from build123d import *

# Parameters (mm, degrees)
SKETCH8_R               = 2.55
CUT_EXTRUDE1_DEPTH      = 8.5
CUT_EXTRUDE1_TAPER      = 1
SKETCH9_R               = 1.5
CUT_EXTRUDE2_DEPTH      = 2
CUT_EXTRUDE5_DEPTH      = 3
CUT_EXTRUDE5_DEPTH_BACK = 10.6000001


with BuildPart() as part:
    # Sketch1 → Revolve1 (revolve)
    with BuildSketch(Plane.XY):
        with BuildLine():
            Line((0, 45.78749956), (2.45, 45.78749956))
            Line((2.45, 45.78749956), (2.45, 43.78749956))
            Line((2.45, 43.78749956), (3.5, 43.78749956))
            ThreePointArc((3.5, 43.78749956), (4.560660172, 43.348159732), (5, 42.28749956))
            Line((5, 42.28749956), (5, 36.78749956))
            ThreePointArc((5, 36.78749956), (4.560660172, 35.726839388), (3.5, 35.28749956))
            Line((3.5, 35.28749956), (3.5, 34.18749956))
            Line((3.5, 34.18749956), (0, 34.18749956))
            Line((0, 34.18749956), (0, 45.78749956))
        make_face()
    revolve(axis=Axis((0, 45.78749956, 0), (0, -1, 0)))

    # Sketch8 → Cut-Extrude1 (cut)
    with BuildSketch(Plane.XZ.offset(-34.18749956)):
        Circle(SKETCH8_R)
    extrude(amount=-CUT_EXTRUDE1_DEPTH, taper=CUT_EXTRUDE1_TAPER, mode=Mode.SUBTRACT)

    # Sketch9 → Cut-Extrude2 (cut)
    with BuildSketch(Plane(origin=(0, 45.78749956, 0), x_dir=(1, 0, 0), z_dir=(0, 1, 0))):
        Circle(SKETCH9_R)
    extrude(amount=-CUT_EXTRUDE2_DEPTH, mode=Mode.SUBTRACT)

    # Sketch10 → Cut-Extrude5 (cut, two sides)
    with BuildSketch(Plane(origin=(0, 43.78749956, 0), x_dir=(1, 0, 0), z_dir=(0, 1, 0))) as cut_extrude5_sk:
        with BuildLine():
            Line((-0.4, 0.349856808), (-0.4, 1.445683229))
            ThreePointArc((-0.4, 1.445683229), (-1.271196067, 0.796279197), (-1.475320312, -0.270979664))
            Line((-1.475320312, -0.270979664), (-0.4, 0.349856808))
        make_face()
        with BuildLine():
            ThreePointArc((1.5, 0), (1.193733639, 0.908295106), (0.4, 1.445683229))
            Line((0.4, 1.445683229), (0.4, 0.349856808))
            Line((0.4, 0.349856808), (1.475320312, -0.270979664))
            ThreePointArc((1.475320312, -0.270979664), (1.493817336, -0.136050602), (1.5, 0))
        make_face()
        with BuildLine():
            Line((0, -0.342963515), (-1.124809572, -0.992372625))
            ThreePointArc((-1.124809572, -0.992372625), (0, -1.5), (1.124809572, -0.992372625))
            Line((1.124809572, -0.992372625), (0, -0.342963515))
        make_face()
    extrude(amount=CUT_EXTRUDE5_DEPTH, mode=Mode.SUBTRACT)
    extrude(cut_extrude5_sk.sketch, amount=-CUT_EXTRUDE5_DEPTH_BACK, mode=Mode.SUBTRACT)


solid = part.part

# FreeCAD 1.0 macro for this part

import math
import FreeCAD as App
import Part
import Sketcher
from FreeCAD import Vector
Q = App.Units.Quantity

doc = App.newDocument("Part")
body = doc.addObject("PartDesign::Body", "Body")

# Sketch on XY plane
sketch1 = body.newObject("Sketcher::SketchObject", "Sketch")
sketch1.AttachmentSupport = (doc.getObject("XY_Plane"), [""])
sketch1.MapMode = "FlatFace"
sketch1.addGeometry([
    Part.LineSegment(Vector(2.5, 45.8, 0), Vector(0, 45.8, 0)),  # 0
    Part.LineSegment(Vector(0, 45.8, 0), Vector(0, 34.2, 0)),  # 1
    Part.LineSegment(Vector(0, 34.2, 0), Vector(3.5, 34.2, 0)),  # 2
    Part.LineSegment(Vector(3.5, 34.2, 0), Vector(3.5, 35.3, 0)),  # 3
    Part.ArcOfCircle(Part.Circle(Vector(3.5, 36.8, 0), Vector(0, 0, 1), 1.5), math.radians(-90), math.radians(0)),  # 4
    Part.LineSegment(Vector(5, 36.8, 0), Vector(5, 42.3, 0)),  # 5
    Part.ArcOfCircle(Part.Circle(Vector(3.5, 42.3, 0), Vector(0, 0, 1), 1.5), math.radians(0), math.radians(90)),  # 6
    Part.LineSegment(Vector(3.5, 43.8, 0), Vector(2.5, 43.8, 0)),  # 7
    Part.LineSegment(Vector(2.5, 43.8, 0), Vector(2.5, 45.8, 0)),  # 8
], False)
sketch1.addConstraint([
    Sketcher.Constraint("Coincident", 0, 2, 1, 1),
    Sketcher.Constraint("Coincident", 1, 2, 2, 1),
    Sketcher.Constraint("Coincident", 2, 2, 3, 1),
    Sketcher.Constraint("Coincident", 3, 2, 4, 1),
    Sketcher.Constraint("Tangent", 4, 2, 5, 1),
    Sketcher.Constraint("Tangent", 5, 2, 6, 1),
    Sketcher.Constraint("Tangent", 6, 2, 7, 1),
    Sketcher.Constraint("Coincident", 7, 2, 8, 1),
    Sketcher.Constraint("Coincident", 8, 2, 0, 1),
    Sketcher.Constraint("Horizontal", 0),
    Sketcher.Constraint("Vertical", 1),
    Sketcher.Constraint("Horizontal", 2),
    Sketcher.Constraint("Vertical", 3),
    Sketcher.Constraint("Vertical", 5),
    Sketcher.Constraint("Horizontal", 7),
    Sketcher.Constraint("Vertical", 8),
    Sketcher.Constraint("Equal", 4, 6),
    Sketcher.Constraint("PointOnObject", 0, 2, -2),
    Sketcher.Constraint("Vertical", 6, 3, 2, 2),
    Sketcher.Constraint("Radius", 4, Q("1.5 mm")),
    Sketcher.Constraint("DistanceY", 8, 1, 8, 2, Q("2 mm")),
    Sketcher.Constraint("DistanceX", 2, 1, 2, 2, Q("3.5 mm")),
    Sketcher.Constraint("DistanceY", 1, 2, 1, 1, Q("11.6 mm")),
    Sketcher.Constraint("DistanceY", 3, 1, 3, 2, Q("1.1 mm")),
    Sketcher.Constraint("DistanceX", 0, 2, 0, 1, Q("2.45 mm")),
    Sketcher.Constraint("DistanceY", -1, 1, 4, 3, Q("36.7875 mm")),
])
revolution = body.newObject("PartDesign::Revolution", "Revolution")
revolution.Profile = sketch1
revolution.ReferenceAxis = (sketch1, ["V_Axis"])
revolution.Angle = 360

# Sketch on XZ plane
sketch2 = body.newObject("Sketcher::SketchObject", "Sketch001")
sketch2.AttachmentSupport = (doc.getObject("XZ_Plane"), [""])
sketch2.MapMode = "FlatFace"
sketch2.AttachmentOffset = App.Placement(Vector(0, 0, -34.1875), App.Rotation())
sketch2.addGeometry(Part.Circle(Vector(0, 0, 0), Vector(0, 0, 1), 2.5), False)
sketch2.addConstraint([
    Sketcher.Constraint("Coincident", 0, 3, -1, 1),
    Sketcher.Constraint("Diameter", 0, Q("5.1 mm")),
])
pocket1 = body.newObject("PartDesign::Pocket", "Pocket")
pocket1.Profile = sketch2
pocket1.Length = 8.5
pocket1.TaperAngle = -1

# Sketch on XZ plane
sketch3 = body.newObject("Sketcher::SketchObject", "Sketch002")
sketch3.AttachmentSupport = (doc.getObject("XZ_Plane"), [""])
sketch3.MapMode = "FlatFace"
sketch3.AttachmentOffset = App.Placement(Vector(0, 0, -45.7875), App.Rotation())
sketch3.addGeometry(Part.Circle(Vector(0, 0, 0), Vector(0, 0, 1), 1.5), False)
sketch3.addConstraint([
    Sketcher.Constraint("Coincident", 0, 3, -1, 1),
    Sketcher.Constraint("Diameter", 0, Q("3 mm")),
])
pocket2 = body.newObject("PartDesign::Pocket", "Pocket001")
pocket2.Profile = sketch3
pocket2.Length = 2
pocket2.Reversed = True

# Sketch on XZ plane
sketch4 = body.newObject("Sketcher::SketchObject", "Sketch003")
sketch4.AttachmentSupport = (doc.getObject("XZ_Plane"), [""])
sketch4.MapMode = "FlatFace"
sketch4.AttachmentOffset = App.Placement(Vector(0, 0, -43.7875), App.Rotation())
sketch4.addGeometry([
    Part.LineSegment(Vector(-0.4, -0.35, 0), Vector(-0.4, -1.45, 0)),  # 0
    Part.ArcOfCircle(Part.Circle(Vector(0, 0, 0), Vector(0, 0, 1), 1.5), math.radians(170), math.radians(255)),  # 1
    Part.LineSegment(Vector(-1.48, 0.27, 0), Vector(-0.4, -0.35, 0)),  # 2
    Part.ArcOfCircle(Part.Circle(Vector(0, 0, 0), Vector(0, 0, 1), 1.5), math.radians(-75), math.radians(0)),  # 3
    Part.LineSegment(Vector(0.4, -1.45, 0), Vector(0.4, -0.35, 0)),  # 4
    Part.LineSegment(Vector(0.4, -0.35, 0), Vector(1.48, 0.27, 0)),  # 5
    Part.ArcOfCircle(Part.Circle(Vector(0, 0, 0), Vector(0, 0, 1), 1.5), math.radians(0), math.radians(10.41)),  # 6
    Part.LineSegment(Vector(0, 0.34, 0), Vector(-1.12, 0.99, 0)),  # 7
    Part.ArcOfCircle(Part.Circle(Vector(0, 0, 0), Vector(0, 0, 1), 1.5), math.radians(41), math.radians(139)),  # 8
    Part.LineSegment(Vector(1.12, 0.99, 0), Vector(0, 0.34, 0)),  # 9
], False)
sketch4.addConstraint([
    Sketcher.Constraint("Coincident", 0, 2, 1, 2),
    Sketcher.Constraint("Coincident", 1, 1, 2, 1),
    Sketcher.Constraint("Coincident", 2, 2, 0, 1),
    Sketcher.Constraint("Coincident", 3, 1, 4, 1),
    Sketcher.Constraint("Coincident", 4, 2, 5, 1),
    Sketcher.Constraint("Coincident", 5, 2, 6, 2),
    Sketcher.Constraint("Tangent", 6, 1, 3, 2),
    Sketcher.Constraint("Coincident", 7, 2, 8, 2),
    Sketcher.Constraint("Coincident", 8, 1, 9, 1),
    Sketcher.Constraint("Coincident", 9, 2, 7, 1),
    Sketcher.Constraint("Vertical", 0),
    Sketcher.Constraint("Vertical", 4),
    Sketcher.Constraint("Coincident", 1, 3, -1, 1),
    Sketcher.Constraint("Coincident", 3, 3, -1, 1),
    Sketcher.Constraint("Coincident", 8, 3, -1, 1),
    Sketcher.Constraint("Equal", 1, 3),
    Sketcher.Constraint("Equal", 3, 6),
    Sketcher.Constraint("Equal", 6, 8),
    Sketcher.Constraint("Symmetric", 2, 2, 4, 2, -2),
    Sketcher.Constraint("PointOnObject", 6, 1, -1),
    Sketcher.Constraint("PointOnObject", 9, 2, -2),
    Sketcher.Constraint("Parallel", 2, 7),
    Sketcher.Constraint("Parallel", 5, 9),
    Sketcher.Constraint("Horizontal", 1, 1, 5, 2),
    Sketcher.Constraint("Radius", 1, Q("1.5 mm")),
    Sketcher.Constraint("Angle", 2, Q("-30 deg")),
    Sketcher.Constraint("DistanceX", 0, 2, -1, 1, Q("0.4 mm")),
    Sketcher.Constraint("Distance", 7, Q("1.298818 mm")),
    Sketcher.Constraint("DistanceY", 0, 2, 0, 1, Q("1.095826 mm")),
])
pocket3 = body.newObject("PartDesign::Pocket", "Pocket002")
pocket3.Profile = sketch4
pocket3.Type = "ThroughAll"
pocket3.Midplane = True

doc.recompute()
